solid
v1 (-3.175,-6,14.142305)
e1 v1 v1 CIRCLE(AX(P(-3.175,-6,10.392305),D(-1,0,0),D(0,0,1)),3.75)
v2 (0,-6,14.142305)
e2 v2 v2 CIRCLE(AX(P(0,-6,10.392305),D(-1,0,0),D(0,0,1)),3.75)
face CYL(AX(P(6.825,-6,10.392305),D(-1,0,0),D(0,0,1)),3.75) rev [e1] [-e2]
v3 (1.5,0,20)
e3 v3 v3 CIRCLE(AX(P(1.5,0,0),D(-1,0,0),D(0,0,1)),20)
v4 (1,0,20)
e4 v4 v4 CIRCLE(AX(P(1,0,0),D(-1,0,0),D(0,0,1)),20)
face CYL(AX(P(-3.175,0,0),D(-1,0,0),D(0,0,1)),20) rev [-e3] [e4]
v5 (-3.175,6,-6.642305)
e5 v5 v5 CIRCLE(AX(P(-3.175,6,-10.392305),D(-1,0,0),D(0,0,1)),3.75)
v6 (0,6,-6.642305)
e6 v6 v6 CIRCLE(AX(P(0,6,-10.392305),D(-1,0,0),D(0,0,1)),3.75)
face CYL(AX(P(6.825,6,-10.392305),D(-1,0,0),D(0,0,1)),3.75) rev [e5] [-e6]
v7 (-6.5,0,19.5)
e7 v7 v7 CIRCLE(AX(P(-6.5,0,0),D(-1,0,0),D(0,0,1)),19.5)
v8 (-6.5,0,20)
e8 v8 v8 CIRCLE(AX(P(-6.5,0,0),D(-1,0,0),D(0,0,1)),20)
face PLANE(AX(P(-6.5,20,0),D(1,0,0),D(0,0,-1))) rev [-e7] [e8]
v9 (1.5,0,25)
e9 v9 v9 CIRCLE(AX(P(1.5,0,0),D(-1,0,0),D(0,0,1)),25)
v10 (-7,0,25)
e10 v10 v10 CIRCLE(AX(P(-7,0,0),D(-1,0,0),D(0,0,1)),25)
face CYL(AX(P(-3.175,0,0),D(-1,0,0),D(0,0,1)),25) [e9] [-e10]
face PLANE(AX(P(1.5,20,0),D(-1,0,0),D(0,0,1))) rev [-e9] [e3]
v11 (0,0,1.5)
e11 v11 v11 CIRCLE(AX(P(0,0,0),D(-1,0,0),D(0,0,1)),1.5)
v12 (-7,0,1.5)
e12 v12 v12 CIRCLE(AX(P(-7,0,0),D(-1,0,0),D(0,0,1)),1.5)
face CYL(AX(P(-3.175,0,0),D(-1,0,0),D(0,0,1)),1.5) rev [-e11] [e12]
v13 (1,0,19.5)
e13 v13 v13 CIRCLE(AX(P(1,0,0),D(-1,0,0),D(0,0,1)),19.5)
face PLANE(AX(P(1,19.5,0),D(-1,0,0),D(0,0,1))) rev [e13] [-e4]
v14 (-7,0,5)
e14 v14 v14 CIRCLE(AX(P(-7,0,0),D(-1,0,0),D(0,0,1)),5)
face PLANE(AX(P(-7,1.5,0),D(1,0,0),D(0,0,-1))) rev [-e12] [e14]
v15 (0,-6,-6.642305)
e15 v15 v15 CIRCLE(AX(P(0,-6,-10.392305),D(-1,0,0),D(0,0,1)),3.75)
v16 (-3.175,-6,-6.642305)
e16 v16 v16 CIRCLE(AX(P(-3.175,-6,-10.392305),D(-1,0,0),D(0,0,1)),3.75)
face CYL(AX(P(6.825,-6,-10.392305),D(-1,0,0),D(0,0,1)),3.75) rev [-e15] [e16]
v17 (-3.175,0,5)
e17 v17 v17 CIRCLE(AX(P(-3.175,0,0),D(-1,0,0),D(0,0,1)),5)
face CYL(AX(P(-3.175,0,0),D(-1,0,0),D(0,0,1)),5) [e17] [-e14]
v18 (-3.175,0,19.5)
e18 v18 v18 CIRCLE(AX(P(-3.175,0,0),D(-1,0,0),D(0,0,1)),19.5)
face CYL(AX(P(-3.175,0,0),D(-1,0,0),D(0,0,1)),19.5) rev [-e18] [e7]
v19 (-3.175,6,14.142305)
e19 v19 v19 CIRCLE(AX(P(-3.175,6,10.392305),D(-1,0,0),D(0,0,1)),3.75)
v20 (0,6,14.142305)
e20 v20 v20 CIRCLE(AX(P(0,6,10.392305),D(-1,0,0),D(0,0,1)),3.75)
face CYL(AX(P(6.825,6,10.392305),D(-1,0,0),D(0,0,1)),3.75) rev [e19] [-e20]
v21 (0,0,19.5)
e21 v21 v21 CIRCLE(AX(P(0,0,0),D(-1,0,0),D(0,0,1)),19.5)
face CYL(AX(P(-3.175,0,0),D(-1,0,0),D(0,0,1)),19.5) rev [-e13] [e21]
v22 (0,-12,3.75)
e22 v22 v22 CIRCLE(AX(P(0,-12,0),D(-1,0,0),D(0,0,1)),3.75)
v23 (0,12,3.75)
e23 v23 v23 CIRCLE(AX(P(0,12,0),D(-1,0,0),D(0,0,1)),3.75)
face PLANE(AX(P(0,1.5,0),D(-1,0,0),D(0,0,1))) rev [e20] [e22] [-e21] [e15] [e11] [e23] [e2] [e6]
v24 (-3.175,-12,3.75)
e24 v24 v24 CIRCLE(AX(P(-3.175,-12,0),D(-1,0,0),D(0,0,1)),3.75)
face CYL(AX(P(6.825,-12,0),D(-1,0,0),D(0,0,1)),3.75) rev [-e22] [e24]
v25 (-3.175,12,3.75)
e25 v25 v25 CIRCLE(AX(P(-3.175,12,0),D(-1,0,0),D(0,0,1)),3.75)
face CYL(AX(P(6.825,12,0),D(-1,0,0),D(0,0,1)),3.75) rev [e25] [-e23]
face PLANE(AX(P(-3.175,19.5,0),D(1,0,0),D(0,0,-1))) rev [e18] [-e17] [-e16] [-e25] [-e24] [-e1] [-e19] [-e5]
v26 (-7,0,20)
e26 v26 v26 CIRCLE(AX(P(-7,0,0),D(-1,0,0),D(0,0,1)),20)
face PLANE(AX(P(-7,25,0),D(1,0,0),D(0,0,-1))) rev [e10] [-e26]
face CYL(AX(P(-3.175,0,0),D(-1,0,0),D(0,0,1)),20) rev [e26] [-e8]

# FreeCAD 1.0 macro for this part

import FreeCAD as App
import Part
import Sketcher

V = App.Vector
Q = App.Units.Quantity


def add_polygon(sketch, points):
    """Adds a closed chain of lines whose ends are joined by coincident constraints."""
    first, n = sketch.GeometryCount, len(points)
    for a, b in zip(points, points[1:] + points[:1]):
        sketch.addGeometry(Part.LineSegment(App.Vector(*a, 0), App.Vector(*b, 0)), False)
    for i in range(n):
        sketch.addConstraint(Sketcher.Constraint("Coincident", first + i, 2, first + (i + 1) % n, 1))

doc = App.newDocument("Part")
body = doc.addObject("PartDesign::Body", "Body")

# Sketch on XY plane
sketch1 = body.newObject("Sketcher::SketchObject", "Sketch")
sketch1.AttachmentSupport = (doc.getObject("XY_Plane"), [""])
sketch1.MapMode = "FlatFace"
add_polygon(sketch1, [(0, 1.5), (0, 19.5), (1, 19.5), (1, 20), (1.5, 20), (1.5, 25), (-7, 25), (-7, 20), (-6.5, 20), (-6.5, 19.5), (-3.2, 19.5), (-3.2, 5), (-7, 5), (-7, 1.5)])  # lines 0-13
sketch1.addConstraint([
    Sketcher.Constraint("Vertical", 0),
    Sketcher.Constraint("Horizontal", 1),
    Sketcher.Constraint("Vertical", 2),
    Sketcher.Constraint("Horizontal", 3),
    Sketcher.Constraint("Vertical", 4),
    Sketcher.Constraint("Horizontal", 5),
    Sketcher.Constraint("Vertical", 6),
    Sketcher.Constraint("Horizontal", 7),
    Sketcher.Constraint("Vertical", 8),
    Sketcher.Constraint("Horizontal", 9),
    Sketcher.Constraint("Vertical", 10),
    Sketcher.Constraint("Horizontal", 11),
    Sketcher.Constraint("Vertical", 12),
    Sketcher.Constraint("Horizontal", 13),
    Sketcher.Constraint("PointOnObject", 0, 2, -2),
    Sketcher.Constraint("Horizontal", 3, 2, 6, 2),
    Sketcher.Constraint("Horizontal", 1, 2, 8, 2),
    Sketcher.Constraint("Vertical", 6, 2, 11, 2),
    Sketcher.Constraint("Equal", 3, 7),
    Sketcher.Constraint("Equal", 7, 2),
    Sketcher.Constraint("DistanceX", 1, 1, 1, 2, Q("1 mm")),
    Sketcher.Constraint("DistanceX", 13, 1, 13, 2, Q("7 mm")),
    Sketcher.Constraint("DistanceY", 0, 1, 0, 2, Q("18 mm")),
    Sketcher.Constraint("DistanceY", 4, 1, 4, 2, Q("5 mm")),
    Sketcher.Constraint("DistanceX", 3, 1, 3, 2, Q("0.5 mm")),
    Sketcher.Constraint("DistanceY", 10, 2, 10, 1, Q("14.5 mm")),
    Sketcher.Constraint("DistanceY", -1, 1, 2, 2, Q("20 mm")),
    Sketcher.Constraint("DistanceX", 9, 1, 9, 2, Q("3.325 mm")),
])
revolution = body.newObject("PartDesign::Revolution", "Revolution")
revolution.Profile = sketch1
revolution.ReferenceAxis = (sketch1, ["H_Axis"])
revolution.Angle = 360

# Sketch on YZ plane
sketch2 = body.newObject("Sketcher::SketchObject", "Sketch001")
sketch2.AttachmentSupport = (doc.getObject("YZ_Plane"), [""])
sketch2.MapMode = "FlatFace"
sketch2.AttachmentOffset = App.Placement(V(0, 0, -3.175), App.Rotation())
sketch2.addGeometry([
    Part.Circle(V(12, 0, 0), V(0, 0, 1), 3.8),  # 0
    Part.Circle(V(6, 10.4, 0), V(0, 0, 1), 3.8),  # 1
    Part.Circle(V(-6, 10.4, 0), V(0, 0, 1), 3.8),  # 2
    Part.Circle(V(-12, 0, 0), V(0, 0, 1), 3.8),  # 3
    Part.Circle(V(-6, -10.4, 0), V(0, 0, 1), 3.8),  # 4
    Part.Circle(V(6, -10.4, 0), V(0, 0, 1), 3.8),  # 5
], False)
sketch2.addConstraint([
    Sketcher.Constraint("Equal", 0, 1),
    Sketcher.Constraint("Equal", 1, 2),
    Sketcher.Constraint("Equal", 2, 3),
    Sketcher.Constraint("Equal", 3, 4),
    Sketcher.Constraint("Equal", 4, 5),
    Sketcher.Constraint("Symmetric", 0, 3, 3, 3, -1, 1),
    Sketcher.Constraint("Symmetric", 1, 3, 4, 3, -1, 1),
    Sketcher.Constraint("Symmetric", 2, 3, 5, 3, -1, 1),
    Sketcher.Constraint("Symmetric", 1, 3, 2, 3, -2),
    Sketcher.Constraint("PointOnObject", 0, 3, -1),
    Sketcher.Constraint("Diameter", 0, Q("7.5 mm")),
    Sketcher.Constraint("DistanceX", -1, 1, 0, 3, Q("12 mm")),
    Sketcher.Constraint("DistanceX", -1, 1, 1, 3, Q("6 mm")),
    Sketcher.Constraint("DistanceY", 4, 3, 2, 3, Q("20.78461 mm")),
])
pocket1 = body.newObject("PartDesign::Pocket", "Pocket")
pocket1.Profile = sketch2
pocket1.Length = 10
pocket1.Reversed = True

doc.recompute()
